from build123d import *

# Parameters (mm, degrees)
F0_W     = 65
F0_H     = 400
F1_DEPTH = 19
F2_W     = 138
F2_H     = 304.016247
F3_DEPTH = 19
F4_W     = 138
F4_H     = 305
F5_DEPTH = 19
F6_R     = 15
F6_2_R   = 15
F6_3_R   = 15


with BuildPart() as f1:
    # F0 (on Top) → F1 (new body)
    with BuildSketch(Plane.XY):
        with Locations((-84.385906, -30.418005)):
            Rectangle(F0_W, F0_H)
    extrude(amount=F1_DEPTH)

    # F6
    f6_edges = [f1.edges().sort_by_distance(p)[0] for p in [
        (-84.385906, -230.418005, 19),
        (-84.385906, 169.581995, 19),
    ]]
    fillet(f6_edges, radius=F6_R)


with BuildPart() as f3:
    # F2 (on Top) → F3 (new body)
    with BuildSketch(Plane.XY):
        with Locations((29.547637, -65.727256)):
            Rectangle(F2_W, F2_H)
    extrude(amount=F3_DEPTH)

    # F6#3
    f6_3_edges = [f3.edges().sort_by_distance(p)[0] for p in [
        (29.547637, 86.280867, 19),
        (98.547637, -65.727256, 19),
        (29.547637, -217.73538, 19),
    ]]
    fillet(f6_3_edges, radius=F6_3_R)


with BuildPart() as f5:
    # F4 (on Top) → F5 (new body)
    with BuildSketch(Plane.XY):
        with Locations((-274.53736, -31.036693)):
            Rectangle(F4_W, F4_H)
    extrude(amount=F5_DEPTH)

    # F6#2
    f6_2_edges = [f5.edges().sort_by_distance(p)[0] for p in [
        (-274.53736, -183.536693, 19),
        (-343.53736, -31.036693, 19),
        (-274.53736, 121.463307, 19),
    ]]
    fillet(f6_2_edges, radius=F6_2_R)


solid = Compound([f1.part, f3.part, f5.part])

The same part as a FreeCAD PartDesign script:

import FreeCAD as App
import Part
import Sketcher
from FreeCAD import Vector
Q = App.Units.Quantity


def edges_at(feature, points):
    """Names of the edges that pass closest to the given points."""
    edges = feature.Shape.Edges
    near = lambda p: min(range(len(edges)), key=lambda i: edges[i].distToShape(Part.Vertex(*p))[0])
    return sorted({f"Edge{near(p) + 1}" for p in points})


def add_polygon(sketch, points):
    """Adds a closed chain of lines whose ends are joined by coincident constraints."""
    first, n = sketch.GeometryCount, len(points)
    for a, b in zip(points, points[1:] + points[:1]):
        sketch.addGeometry(Part.LineSegment(App.Vector(*a, 0), App.Vector(*b, 0)), False)
    for i in range(n):
        sketch.addConstraint(Sketcher.Constraint("Coincident", first + i, 2, first + (i + 1) % n, 1))

doc = App.newDocument("Part")
body = doc.addObject("PartDesign::Body", "Body")

# Sketch on XY plane
sketch1 = doc.addObject("Sketcher::SketchObject", "Sketch")
body.addObject(sketch1)
sketch1.AttachmentSupport = (doc.XY_Plane, [""])
sketch1.MapMode = "FlatFace"
add_polygon(sketch1, [(-117, 170), (-117, -230), (-52, -230), (-52, 170)])  # lines 0-3
sketch1.addConstraint([
    Sketcher.Constraint("Vertical", 0),
    Sketcher.Constraint("Horizontal", 1),
    Sketcher.Constraint("Vertical", 2),
    Sketcher.Constraint("Horizontal", 3),
    Sketcher.Constraint("DistanceX", 1, 1, 1, 2, Q("65 mm")),
    Sketcher.Constraint("DistanceY", 0, 2, 0, 1, Q("400 mm")),
    Sketcher.Constraint("DistanceX", 0, 2, -1, 1, Q("116.885906 mm")),
    Sketcher.Constraint("DistanceY", 0, 2, -1, 1, Q("230.418005 mm")),
])
pad1 = doc.addObject("PartDesign::Pad", "Pad")
body.addObject(pad1)
pad1.Profile = sketch1
pad1.Length = 19
doc.recompute()

fillet = doc.addObject("PartDesign::Fillet", "Fillet")
body.addObject(fillet)
fillet.Base = (pad1, edges_at(pad1, [(-84.386, -230.418, 19), (-84.386, 169.582, 19)]))
fillet.Radius = 15
body2 = doc.addObject("PartDesign::Body", "Body001")

# Sketch on XY plane
sketch2 = doc.addObject("Sketcher::SketchObject", "Sketch001")
body2.addObject(sketch2)
sketch2.AttachmentSupport = (doc.getObject("XY_Plane001"), [""])
sketch2.MapMode = "FlatFace"
add_polygon(sketch2, [(-39, 86), (-39, -218), (99, -218), (99, 86)])  # lines 0-3
sketch2.addConstraint([
    Sketcher.Constraint("Vertical", 0),
    Sketcher.Constraint("Horizontal", 1),
    Sketcher.Constraint("Vertical", 2),
    Sketcher.Constraint("Horizontal", 3),
    Sketcher.Constraint("DistanceX", 1, 1, 1, 2, Q("138 mm")),
    Sketcher.Constraint("DistanceY", 0, 2, 0, 1, Q("304.016247 mm")),
    Sketcher.Constraint("DistanceY", 0, 2, -1, 1, Q("217.735379 mm")),
    Sketcher.Constraint("DistanceX", 0, 2, -1, 1, Q("39.452363 mm")),
])
pad2 = doc.addObject("PartDesign::Pad", "Pad001")
body2.addObject(pad2)
pad2.Profile = sketch2
pad2.Length = 19
doc.recompute()

fillet2 = doc.addObject("PartDesign::Fillet", "Fillet001")
body2.addObject(fillet2)
fillet2.Base = (pad2, edges_at(pad2, [(29.548, 86.281, 19), (98.548, -65.727, 19), (29.548, -217.735, 19)]))
fillet2.Radius = 15
body3 = doc.addObject("PartDesign::Body", "Body002")

# Sketch on XY plane
sketch3 = doc.addObject("Sketcher::SketchObject", "Sketch002")
body3.addObject(sketch3)
sketch3.AttachmentSupport = (doc.getObject("XY_Plane002"), [""])
sketch3.MapMode = "FlatFace"
add_polygon(sketch3, [(-344, 121), (-344, -184), (-206, -184), (-206, 121)])  # lines 0-3
sketch3.addConstraint([
    Sketcher.Constraint("Vertical", 0),
    Sketcher.Constraint("Horizontal", 1),
    Sketcher.Constraint("Vertical", 2),
    Sketcher.Constraint("Horizontal", 3),
    Sketcher.Constraint("DistanceX", 1, 1, 1, 2, Q("138 mm")),
    Sketcher.Constraint("DistanceY", 0, 2, 0, 1, Q("305 mm")),
    Sketcher.Constraint("DistanceX", 0, 2, -1, 1, Q("343.53736 mm")),
    Sketcher.Constraint("DistanceY", 0, 2, -1, 1, Q("183.536693 mm")),
])
pad3 = doc.addObject("PartDesign::Pad", "Pad002")
body3.addObject(pad3)
pad3.Profile = sketch3
pad3.Length = 19
doc.recompute()

fillet3 = doc.addObject("PartDesign::Fillet", "Fillet002")
body3.addObject(fillet3)
fillet3.Base = (pad3, edges_at(pad3, [(-274.537, -183.537, 19), (-343.537, -31.037, 19), (-274.537, 121.463, 19)]))
fillet3.Radius = 15

doc.recompute()
